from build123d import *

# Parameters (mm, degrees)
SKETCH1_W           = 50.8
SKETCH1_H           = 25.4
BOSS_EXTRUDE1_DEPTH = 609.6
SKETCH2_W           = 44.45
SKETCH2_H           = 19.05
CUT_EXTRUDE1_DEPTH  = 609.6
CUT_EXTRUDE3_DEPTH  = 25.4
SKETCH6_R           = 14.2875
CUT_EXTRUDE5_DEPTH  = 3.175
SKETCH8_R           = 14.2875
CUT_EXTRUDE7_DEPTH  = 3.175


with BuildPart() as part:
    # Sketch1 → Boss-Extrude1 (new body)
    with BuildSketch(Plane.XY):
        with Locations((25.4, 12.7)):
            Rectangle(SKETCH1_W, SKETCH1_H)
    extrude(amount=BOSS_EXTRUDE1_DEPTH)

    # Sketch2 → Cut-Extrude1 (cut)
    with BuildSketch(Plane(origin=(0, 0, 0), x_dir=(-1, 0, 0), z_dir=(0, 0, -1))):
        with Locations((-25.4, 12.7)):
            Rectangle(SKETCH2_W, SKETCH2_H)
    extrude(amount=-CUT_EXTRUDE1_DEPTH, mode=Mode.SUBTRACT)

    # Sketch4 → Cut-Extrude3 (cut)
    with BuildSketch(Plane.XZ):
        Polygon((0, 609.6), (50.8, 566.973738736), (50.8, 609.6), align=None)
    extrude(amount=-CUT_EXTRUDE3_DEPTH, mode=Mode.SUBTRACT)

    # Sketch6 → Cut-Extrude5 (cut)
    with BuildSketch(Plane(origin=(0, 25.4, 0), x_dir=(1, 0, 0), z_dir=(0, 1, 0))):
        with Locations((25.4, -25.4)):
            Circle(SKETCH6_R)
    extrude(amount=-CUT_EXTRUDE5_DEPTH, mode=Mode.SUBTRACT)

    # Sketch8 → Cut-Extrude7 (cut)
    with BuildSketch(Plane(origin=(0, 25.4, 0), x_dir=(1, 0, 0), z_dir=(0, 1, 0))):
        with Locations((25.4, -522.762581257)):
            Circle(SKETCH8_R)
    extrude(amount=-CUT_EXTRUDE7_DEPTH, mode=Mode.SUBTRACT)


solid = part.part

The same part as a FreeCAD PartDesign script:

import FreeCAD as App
import Part
import Sketcher

V = App.Vector
Q = App.Units.Quantity


def add_polygon(sketch, points):
    """Adds a closed chain of lines whose ends are joined by coincident constraints."""
    first, n = sketch.GeometryCount, len(points)
    for a, b in zip(points, points[1:] + points[:1]):
        sketch.addGeometry(Part.LineSegment(App.Vector(*a, 0), App.Vector(*b, 0)), False)
    for i in range(n):
        sketch.addConstraint(Sketcher.Constraint("Coincident", first + i, 2, first + (i + 1) % n, 1))

doc = App.newDocument("Part")
body = doc.addObject("PartDesign::Body", "Body")

# Sketch on XY plane
sketch1 = body.newObject("Sketcher::SketchObject", "Sketch")
sketch1.AttachmentSupport = (doc.getObject("XY_Plane"), [""])
sketch1.MapMode = "FlatFace"
add_polygon(sketch1, [(0, 25), (0, 0), (51, 0), (51, 25)])  # lines 0-3
sketch1.addConstraint(Sketcher.Constraint("Vertical", 0))
sketch1.addConstraint(Sketcher.Constraint("Horizontal", 1))
sketch1.addConstraint(Sketcher.Constraint("Vertical", 2))
sketch1.addConstraint(Sketcher.Constraint("Horizontal", 3))
sketch1.addConstraint(Sketcher.Constraint("Coincident", 0, 2, -1, 1))
sketch1.addConstraint(Sketcher.Constraint("DistanceX", 1, 1, 1, 2, Q("2 in")))
sketch1.addConstraint(Sketcher.Constraint("DistanceY", 0, 2, 0, 1, Q("1 in")))
pad1 = body.newObject("PartDesign::Pad", "Pad")
pad1.Profile = sketch1
pad1.Length = Q("24 in")

# Sketch on XY plane
sketch2 = body.newObject("Sketcher::SketchObject", "Sketch001")
sketch2.AttachmentSupport = (doc.getObject("XY_Plane"), [""])
sketch2.MapMode = "FlatFace"
add_polygon(sketch2, [(48, 22), (48, 3), (3, 3), (3, 22)])  # lines 0-3
sketch2.addConstraint(Sketcher.Constraint("Vertical", 0))
sketch2.addConstraint(Sketcher.Constraint("Horizontal", 1))
sketch2.addConstraint(Sketcher.Constraint("Vertical", 2))
sketch2.addConstraint(Sketcher.Constraint("Horizontal", 3))
sketch2.addConstraint(Sketcher.Constraint("DistanceX", 1, 2, 1, 1, Q("1.75 in")))
sketch2.addConstraint(Sketcher.Constraint("DistanceY", 0, 2, 0, 1, Q("0.75 in")))
sketch2.addConstraint(Sketcher.Constraint("DistanceX", -1, 1, 0, 2, Q("1.875 in")))
sketch2.addConstraint(Sketcher.Constraint("DistanceY", -1, 1, 0, 2, Q("0.125 in")))
pocket1 = body.newObject("PartDesign::Pocket", "Pocket")
pocket1.Profile = sketch2
pocket1.Length = Q("24 in")
pocket1.Reversed = True

# Sketch on XZ plane
sketch3 = body.newObject("Sketcher::SketchObject", "Sketch002")
sketch3.AttachmentSupport = (doc.getObject("XZ_Plane"), [""])
sketch3.MapMode = "FlatFace"
add_polygon(sketch3, [(0, 610), (51, 567), (51, 610)])  # lines 0-2
sketch3.addConstraint(Sketcher.Constraint("Vertical", 1))
sketch3.addConstraint(Sketcher.Constraint("Horizontal", 2))
sketch3.addConstraint(Sketcher.Constraint("PointOnObject", 2, 2, -2))
sketch3.addConstraint(Sketcher.Constraint("DistanceX", 2, 2, 2, 1, Q("2 in")))
sketch3.addConstraint(Sketcher.Constraint("DistanceY", -1, 1, 1, 2, Q("24 in")))
sketch3.addConstraint(Sketcher.Constraint("Angle", 0, Q("-40 deg")))
pocket2 = body.newObject("PartDesign::Pocket", "Pocket001")
pocket2.Profile = sketch3
pocket2.Length = Q("1 in")

# Sketch on XZ plane
sketch4 = body.newObject("Sketcher::SketchObject", "Sketch003")
sketch4.AttachmentSupport = (doc.getObject("XZ_Plane"), [""])
sketch4.MapMode = "FlatFace"
sketch4.AttachmentOffset = App.Placement(V(0, 0, -1 * 25.4), App.Rotation())
sketch4.addGeometry(Part.Circle(V(25, 25, 0), V(0, 0, 1), 14), False)
sketch4.addConstraint(Sketcher.Constraint("Diameter", 0, Q("1.125 in")))
sketch4.addConstraint(Sketcher.Constraint("DistanceX", -1, 1, 0, 3, Q("1 in")))
sketch4.addConstraint(Sketcher.Constraint("DistanceY", -1, 1, 0, 3, Q("1 in")))
pocket3 = body.newObject("PartDesign::Pocket", "Pocket002")
pocket3.Profile = sketch4
pocket3.Length = Q("0.125 in")
pocket3.Reversed = True

# Sketch on XZ plane
sketch5 = body.newObject("Sketcher::SketchObject", "Sketch004")
sketch5.AttachmentSupport = (doc.getObject("XZ_Plane"), [""])
sketch5.MapMode = "FlatFace"
sketch5.AttachmentOffset = App.Placement(V(0, 0, -1 * 25.4), App.Rotation())
sketch5.addGeometry(Part.Circle(V(25, 523, 0), V(0, 0, 1), 14), False)
sketch5.addConstraint(Sketcher.Constraint("Diameter", 0, Q("1.125 in")))
sketch5.addConstraint(Sketcher.Constraint("DistanceX", -1, 1, 0, 3, Q("1 in")))
sketch5.addConstraint(Sketcher.Constraint("DistanceY", -1, 1, 0, 3, Q("522.762581 mm")))
pocket4 = body.newObject("PartDesign::Pocket", "Pocket003")
pocket4.Profile = sketch5
pocket4.Length = Q("0.125 in")
pocket4.Reversed = True

doc.recompute()
